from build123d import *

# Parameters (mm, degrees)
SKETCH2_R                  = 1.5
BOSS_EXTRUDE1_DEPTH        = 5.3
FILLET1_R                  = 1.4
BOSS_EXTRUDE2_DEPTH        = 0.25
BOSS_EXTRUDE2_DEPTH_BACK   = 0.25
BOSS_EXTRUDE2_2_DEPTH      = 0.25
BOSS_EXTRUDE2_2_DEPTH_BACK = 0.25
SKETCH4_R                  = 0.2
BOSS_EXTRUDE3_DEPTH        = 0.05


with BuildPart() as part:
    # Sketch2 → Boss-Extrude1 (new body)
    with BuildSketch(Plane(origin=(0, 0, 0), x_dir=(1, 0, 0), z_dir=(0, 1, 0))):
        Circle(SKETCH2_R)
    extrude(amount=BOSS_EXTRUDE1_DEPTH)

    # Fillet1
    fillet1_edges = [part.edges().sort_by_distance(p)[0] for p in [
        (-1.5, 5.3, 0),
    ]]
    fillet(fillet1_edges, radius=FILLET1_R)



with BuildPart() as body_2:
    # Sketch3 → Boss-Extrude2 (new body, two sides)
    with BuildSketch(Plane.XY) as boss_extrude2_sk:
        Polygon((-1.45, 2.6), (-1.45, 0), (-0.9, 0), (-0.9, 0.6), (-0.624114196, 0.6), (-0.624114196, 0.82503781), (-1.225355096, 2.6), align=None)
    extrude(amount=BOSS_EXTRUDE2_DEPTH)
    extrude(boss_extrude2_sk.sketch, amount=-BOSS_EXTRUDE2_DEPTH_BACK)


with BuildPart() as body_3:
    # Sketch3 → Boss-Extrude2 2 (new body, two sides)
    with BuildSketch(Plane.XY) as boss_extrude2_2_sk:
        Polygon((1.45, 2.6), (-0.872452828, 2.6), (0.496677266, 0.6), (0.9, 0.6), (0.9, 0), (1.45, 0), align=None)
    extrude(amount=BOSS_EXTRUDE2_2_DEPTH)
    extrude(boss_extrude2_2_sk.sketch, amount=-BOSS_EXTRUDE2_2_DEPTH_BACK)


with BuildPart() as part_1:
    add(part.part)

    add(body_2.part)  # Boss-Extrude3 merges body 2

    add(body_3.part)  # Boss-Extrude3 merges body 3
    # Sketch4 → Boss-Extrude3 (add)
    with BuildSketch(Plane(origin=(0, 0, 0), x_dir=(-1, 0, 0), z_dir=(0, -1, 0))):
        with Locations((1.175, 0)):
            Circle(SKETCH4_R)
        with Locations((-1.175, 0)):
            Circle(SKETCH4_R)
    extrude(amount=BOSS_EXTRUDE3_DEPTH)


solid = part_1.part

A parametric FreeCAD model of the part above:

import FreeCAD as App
import Part
import Sketcher

V = App.Vector


def edges_at(feature, points):
    """Names of the edges that pass closest to the given points."""
    edges = feature.Shape.Edges
    near = lambda p: min(range(len(edges)), key=lambda i: edges[i].distToShape(Part.Vertex(*p))[0])
    return sorted({f"Edge{near(p) + 1}" for p in points})


def add_polygon(sketch, points):
    """Adds a closed chain of lines whose ends are joined by coincident constraints."""
    first, n = sketch.GeometryCount, len(points)
    for a, b in zip(points, points[1:] + points[:1]):
        sketch.addGeometry(Part.LineSegment(App.Vector(*a, 0), App.Vector(*b, 0)), False)
    for i in range(n):
        sketch.addConstraint(Sketcher.Constraint("Coincident", first + i, 2, first + (i + 1) % n, 1))

doc = App.newDocument("Part")
body = doc.addObject("PartDesign::Body", "Body")

# Sketch on XZ plane
sketch1 = doc.addObject("Sketcher::SketchObject", "Sketch")
body.addObject(sketch1)
sketch1.AttachmentSupport = (doc.XZ_Plane, [""])
sketch1.MapMode = "FlatFace"
sketch1.addGeometry(Part.Circle(V(0, 0, 0), V(0, 0, 1), 1.5), False)
sketch1.addConstraint(Sketcher.Constraint("Coincident", 0, 3, -1, 1))
sketch1.addConstraint(Sketcher.Constraint("Diameter", 0, 3.0))
pad1 = doc.addObject("PartDesign::Pad", "Pad")
body.addObject(pad1)
pad1.Profile = sketch1
pad1.Length = 5.3
pad1.Reversed = True
doc.recompute()

fillet = doc.addObject("PartDesign::Fillet", "Fillet")
body.addObject(fillet)
fillet.Base = (pad1, edges_at(pad1, [(-1.5, 5.3, 0)]))
fillet.Radius = 1.4
body2 = doc.addObject("PartDesign::Body", "Body001")

# Sketch on XY plane
sketch2 = doc.addObject("Sketcher::SketchObject", "Sketch001")
body2.addObject(sketch2)
sketch2.AttachmentSupport = (doc.getObject("XY_Plane001"), [""])
sketch2.MapMode = "FlatFace"
add_polygon(sketch2, [(-1.45, 2.6), (-1.45, 0), (-0.9, 0), (-0.9, 0.6), (-0.62, 0.6), (-0.62, 0.83), (-1.23, 2.6)])  # lines 0-6
sketch2.addConstraint(Sketcher.Constraint("Vertical", 0))
sketch2.addConstraint(Sketcher.Constraint("Horizontal", 1))
sketch2.addConstraint(Sketcher.Constraint("Vertical", 2))
sketch2.addConstraint(Sketcher.Constraint("Horizontal", 3))
sketch2.addConstraint(Sketcher.Constraint("Vertical", 4))
sketch2.addConstraint(Sketcher.Constraint("Horizontal", 6))
sketch2.addConstraint(Sketcher.Constraint("PointOnObject", 0, 2, -1))
sketch2.addConstraint(Sketcher.Constraint("DistanceY", 0, 2, 0, 1, 2.6))
sketch2.addConstraint(Sketcher.Constraint("DistanceY", 2, 1, 2, 2, 0.6))
sketch2.addConstraint(Sketcher.Constraint("DistanceX", 1, 1, 1, 2, 0.55))
sketch2.addConstraint(Sketcher.Constraint("DistanceX", 1, 2, -1, 1, 0.9))
sketch2.addConstraint(Sketcher.Constraint("Distance", 5, 1.874028))
sketch2.addConstraint(Sketcher.Constraint("DistanceX", 3, 1, 3, 2, 0.275886))
sketch2.addConstraint(Sketcher.Constraint("DistanceX", 6, 2, 6, 1, 0.224645))
pad2 = doc.addObject("PartDesign::Pad", "Pad001")
body2.addObject(pad2)
pad2.Profile = sketch2
pad2.Type = "TwoLengths"
pad2.Length = 0.25
pad2.Length2 = 0.25
body3 = doc.addObject("PartDesign::Body", "Body002")

# Sketch on XY plane
sketch3 = doc.addObject("Sketcher::SketchObject", "Sketch002")
body3.addObject(sketch3)
sketch3.AttachmentSupport = (doc.getObject("XY_Plane002"), [""])
sketch3.MapMode = "FlatFace"
add_polygon(sketch3, [(1.45, 2.6), (-0.87, 2.6), (0.5, 0.6), (0.9, 0.6), (0.9, 0), (1.45, 0)])  # lines 0-5
sketch3.addConstraint(Sketcher.Constraint("Horizontal", 0))
sketch3.addConstraint(Sketcher.Constraint("Horizontal", 2))
sketch3.addConstraint(Sketcher.Constraint("Vertical", 3))
sketch3.addConstraint(Sketcher.Constraint("Horizontal", 4))
sketch3.addConstraint(Sketcher.Constraint("Vertical", 5))
sketch3.addConstraint(Sketcher.Constraint("PointOnObject", 3, 2, -1))
sketch3.addConstraint(Sketcher.Constraint("DistanceY", 3, 2, 3, 1, 0.6))
sketch3.addConstraint(Sketcher.Constraint("DistanceY", 5, 1, 5, 2, 2.6))
sketch3.addConstraint(Sketcher.Constraint("DistanceX", 4, 1, 4, 2, 0.55))
sketch3.addConstraint(Sketcher.Constraint("DistanceX", -1, 1, 2, 2, 0.9))
sketch3.addConstraint(Sketcher.Constraint("Distance", 1, 2.42374))
sketch3.addConstraint(Sketcher.Constraint("DistanceX", 0, 2, 0, 1, 2.322453))
pad3 = doc.addObject("PartDesign::Pad", "Pad002")
body3.addObject(pad3)
pad3.Profile = sketch3
pad3.Type = "TwoLengths"
pad3.Length = 0.25
pad3.Length2 = 0.25
doc.recompute()

boolean = doc.addObject("PartDesign::Boolean", "Boolean")
body.addObject(boolean)
boolean.Type = "Fuse"
boolean.addObjects([body2])
doc.recompute()

boolean2 = doc.addObject("PartDesign::Boolean", "Boolean001")
body.addObject(boolean2)
boolean2.Type = "Fuse"
boolean2.addObjects([body3])

# Sketch on XZ plane
sketch4 = doc.addObject("Sketcher::SketchObject", "Sketch003")
body.addObject(sketch4)
sketch4.AttachmentSupport = (doc.XZ_Plane, [""])
sketch4.MapMode = "FlatFace"
sketch4.addGeometry(Part.Circle(V(-1.18, 0, 0), V(0, 0, 1), 0.2), False)
sketch4.addGeometry(Part.Circle(V(1.18, 0, 0), V(0, 0, 1), 0.2), False)
sketch4.addConstraint(Sketcher.Constraint("Equal", 0, 1))
sketch4.addConstraint(Sketcher.Constraint("Symmetric", 0, 3, 1, 3, -1, 1))
sketch4.addConstraint(Sketcher.Constraint("PointOnObject", 0, 3, -1))
sketch4.addConstraint(Sketcher.Constraint("Diameter", 0, 0.4))
sketch4.addConstraint(Sketcher.Constraint("DistanceX", 0, 3, 1, 3, 2.35))
pad4 = doc.addObject("PartDesign::Pad", "Pad003")
body.addObject(pad4)
pad4.Profile = sketch4
pad4.Length = 0.05

doc.recompute()
